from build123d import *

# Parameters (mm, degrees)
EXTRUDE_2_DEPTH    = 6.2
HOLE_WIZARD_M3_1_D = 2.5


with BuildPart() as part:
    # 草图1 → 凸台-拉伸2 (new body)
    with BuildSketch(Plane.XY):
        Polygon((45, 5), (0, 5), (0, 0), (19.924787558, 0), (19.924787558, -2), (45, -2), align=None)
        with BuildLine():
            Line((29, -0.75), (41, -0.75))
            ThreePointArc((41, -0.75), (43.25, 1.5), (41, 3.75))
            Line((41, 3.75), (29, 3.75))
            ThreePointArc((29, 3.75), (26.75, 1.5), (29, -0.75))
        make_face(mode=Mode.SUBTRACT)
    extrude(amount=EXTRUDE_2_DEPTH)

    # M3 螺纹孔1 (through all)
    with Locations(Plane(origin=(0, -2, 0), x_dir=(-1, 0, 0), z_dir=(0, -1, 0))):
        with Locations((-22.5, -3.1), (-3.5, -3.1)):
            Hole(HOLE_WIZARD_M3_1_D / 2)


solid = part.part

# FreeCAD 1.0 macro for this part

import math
import FreeCAD as App
import Part
import Sketcher

V = App.Vector


def add_polygon(sketch, points):
    """Adds a closed chain of lines whose ends are joined by coincident constraints."""
    first, n = sketch.GeometryCount, len(points)
    for a, b in zip(points, points[1:] + points[:1]):
        sketch.addGeometry(Part.LineSegment(App.Vector(*a, 0), App.Vector(*b, 0)), False)
    for i in range(n):
        sketch.addConstraint(Sketcher.Constraint("Coincident", first + i, 2, first + (i + 1) % n, 1))

doc = App.newDocument("Part")
body = doc.addObject("PartDesign::Body", "Body")

sketch1 = body.newObject("Sketcher::SketchObject", "Sketch")
sketch1.AttachmentSupport = (doc.getObject("XY_Plane"), [""])
sketch1.MapMode = "FlatFace"
add_polygon(sketch1, [(45, 5), (0, 5), (0, 0), (19.9, 0), (19.9, -2), (45, -2)])
sketch1.addGeometry(Part.LineSegment(V(41, -0.8, 0), V(29, -0.8, 0)), False)
sketch1.addGeometry(Part.ArcOfCircle(Part.Circle(V(29, 1.5, 0), V(0, 0, 1), 2.2), math.radians(90), math.radians(270)), False)
sketch1.addGeometry(Part.LineSegment(V(29, 3.8, 0), V(41, 3.8, 0)), False)
sketch1.addGeometry(Part.ArcOfCircle(Part.Circle(V(41, 1.5, 0), V(0, 0, 1), 2.2), math.radians(-90), math.radians(90)), False)
sketch1.addConstraint([
    Sketcher.Constraint("Tangent", 6, 2, 7, 2),
    Sketcher.Constraint("Tangent", 7, 1, 8, 1),
    Sketcher.Constraint("Tangent", 8, 2, 9, 2),
    Sketcher.Constraint("Tangent", 9, 1, 6, 1),
    Sketcher.Constraint("Horizontal", 0),
    Sketcher.Constraint("Vertical", 1),
    Sketcher.Constraint("Horizontal", 2),
    Sketcher.Constraint("Vertical", 3),
    Sketcher.Constraint("Horizontal", 4),
    Sketcher.Constraint("Vertical", 5),
    Sketcher.Constraint("Horizontal", 6),
    Sketcher.Constraint("Horizontal", 8),
    Sketcher.Constraint("Coincident", 1, 2, -1, 1),
    Sketcher.Constraint("DistanceX", 0, 2, 0, 1, 45.0),
    Sketcher.Constraint("DistanceX", 6, 2, 6, 1, 12.0),
    Sketcher.Constraint("DistanceY", 1, 2, 1, 1, 5.0),
    Sketcher.Constraint("DistanceY", 3, 2, 3, 1, 2.0),
    Sketcher.Constraint("Radius", 7, 2.25),
    Sketcher.Constraint("DistanceX", -1, 1, 7, 3, 29.0),
    Sketcher.Constraint("DistanceY", -1, 1, 7, 3, 1.5),
    Sketcher.Constraint("DistanceX", 2, 1, 2, 2, 19.924788),
])
pad1 = body.newObject("PartDesign::Pad", "Pad")
pad1.Profile = sketch1
pad1.Length = 6.2

sketch2 = body.newObject("Sketcher::SketchObject", "Sketch001")
sketch2.AttachmentSupport = (doc.getObject("XZ_Plane"), [""])
sketch2.MapMode = "FlatFace"
sketch2.AttachmentOffset = App.Placement(V(0, 0, 2), App.Rotation())
sketch2.addGeometry([
    Part.Circle(V(22.5, 3.1, 0), V(0, 0, 1), 1.2),
    Part.Circle(V(3.5, 3.1, 0), V(0, 0, 1), 1.2),
], False)
sketch2.addConstraint([
    Sketcher.Constraint("Equal", 0, 1),
    Sketcher.Constraint("Horizontal", 0, 3, 1, 3),
    Sketcher.Constraint("Diameter", 0, 2.5),
    Sketcher.Constraint("DistanceX", 1, 3, 0, 3, 19.0),
    Sketcher.Constraint("DistanceX", -1, 1, 0, 3, 22.5),
    Sketcher.Constraint("DistanceY", -1, 1, 0, 3, 3.1),
])
doc.recompute()
hole = body.newObject("PartDesign::Hole", "Hole")
hole.Profile = sketch2
hole.ThreadType = "None"
hole.Diameter = 2.5
hole.DepthType = "ThroughAll"

doc.recompute()
